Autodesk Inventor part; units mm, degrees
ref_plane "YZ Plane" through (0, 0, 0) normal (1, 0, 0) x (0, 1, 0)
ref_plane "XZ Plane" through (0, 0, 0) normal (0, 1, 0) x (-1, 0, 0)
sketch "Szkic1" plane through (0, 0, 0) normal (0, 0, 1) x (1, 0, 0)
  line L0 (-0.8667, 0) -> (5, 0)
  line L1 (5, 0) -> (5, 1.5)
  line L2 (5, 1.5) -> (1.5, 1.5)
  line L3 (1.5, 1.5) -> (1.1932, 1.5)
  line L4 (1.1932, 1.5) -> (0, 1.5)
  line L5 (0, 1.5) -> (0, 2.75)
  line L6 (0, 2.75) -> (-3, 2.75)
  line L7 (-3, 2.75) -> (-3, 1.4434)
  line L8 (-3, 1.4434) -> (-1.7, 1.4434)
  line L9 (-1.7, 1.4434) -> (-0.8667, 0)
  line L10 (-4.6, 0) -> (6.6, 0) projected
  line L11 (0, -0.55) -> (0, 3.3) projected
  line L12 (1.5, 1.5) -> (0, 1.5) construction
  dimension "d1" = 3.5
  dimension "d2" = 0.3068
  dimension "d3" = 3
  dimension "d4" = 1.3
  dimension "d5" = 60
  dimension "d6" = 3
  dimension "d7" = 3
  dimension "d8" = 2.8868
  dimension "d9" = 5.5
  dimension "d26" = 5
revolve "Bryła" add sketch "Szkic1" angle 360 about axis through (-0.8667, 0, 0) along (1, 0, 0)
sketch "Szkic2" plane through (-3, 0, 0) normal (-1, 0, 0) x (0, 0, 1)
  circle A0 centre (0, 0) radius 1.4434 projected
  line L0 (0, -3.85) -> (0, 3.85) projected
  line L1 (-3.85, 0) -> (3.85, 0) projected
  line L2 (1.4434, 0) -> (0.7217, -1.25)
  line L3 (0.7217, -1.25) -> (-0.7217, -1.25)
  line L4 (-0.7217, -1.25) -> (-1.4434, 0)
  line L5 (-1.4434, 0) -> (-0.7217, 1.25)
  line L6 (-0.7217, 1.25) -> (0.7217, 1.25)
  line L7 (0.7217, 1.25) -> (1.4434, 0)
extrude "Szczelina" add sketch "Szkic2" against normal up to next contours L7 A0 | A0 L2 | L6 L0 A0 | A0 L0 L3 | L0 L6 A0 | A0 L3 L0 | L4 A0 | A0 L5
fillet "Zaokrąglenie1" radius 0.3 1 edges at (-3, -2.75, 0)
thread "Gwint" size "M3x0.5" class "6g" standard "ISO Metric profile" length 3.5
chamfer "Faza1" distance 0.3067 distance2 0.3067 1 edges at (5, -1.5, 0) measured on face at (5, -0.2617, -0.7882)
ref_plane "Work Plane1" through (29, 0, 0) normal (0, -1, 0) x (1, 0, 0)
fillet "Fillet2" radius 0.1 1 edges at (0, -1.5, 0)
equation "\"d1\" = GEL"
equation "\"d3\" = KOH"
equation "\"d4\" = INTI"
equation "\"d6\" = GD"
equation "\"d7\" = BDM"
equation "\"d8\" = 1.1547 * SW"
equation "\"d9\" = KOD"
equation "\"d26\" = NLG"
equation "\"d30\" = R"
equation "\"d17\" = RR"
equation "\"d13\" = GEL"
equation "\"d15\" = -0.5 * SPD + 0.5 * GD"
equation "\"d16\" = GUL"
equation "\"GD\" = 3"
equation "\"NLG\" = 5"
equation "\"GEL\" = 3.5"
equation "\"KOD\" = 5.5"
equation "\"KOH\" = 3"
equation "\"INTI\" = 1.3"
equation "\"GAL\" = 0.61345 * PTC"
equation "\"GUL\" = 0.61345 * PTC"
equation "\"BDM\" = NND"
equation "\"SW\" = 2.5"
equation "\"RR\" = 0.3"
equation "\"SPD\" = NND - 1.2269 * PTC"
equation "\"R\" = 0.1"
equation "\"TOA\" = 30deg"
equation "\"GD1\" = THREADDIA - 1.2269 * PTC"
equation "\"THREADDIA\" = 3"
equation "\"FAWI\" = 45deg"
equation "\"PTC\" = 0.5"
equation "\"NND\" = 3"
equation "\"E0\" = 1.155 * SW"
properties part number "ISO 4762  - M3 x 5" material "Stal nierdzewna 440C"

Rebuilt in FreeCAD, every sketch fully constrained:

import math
import FreeCAD as App
import Part
import Sketcher

V = App.Vector
Q = App.Units.Quantity


def edges_at(feature, points):
    """Names of the edges that pass closest to the given points."""
    edges = feature.Shape.Edges
    near = lambda p: min(range(len(edges)), key=lambda i: edges[i].distToShape(Part.Vertex(*p))[0])
    return sorted({f"Edge{near(p) + 1}" for p in points})


def add_polygon(sketch, points):
    """Adds a closed chain of lines whose ends are joined by coincident constraints."""
    first, n = sketch.GeometryCount, len(points)
    for a, b in zip(points, points[1:] + points[:1]):
        sketch.addGeometry(Part.LineSegment(App.Vector(*a, 0), App.Vector(*b, 0)), False)
    for i in range(n):
        sketch.addConstraint(Sketcher.Constraint("Coincident", first + i, 2, first + (i + 1) % n, 1))

doc = App.newDocument("Part")
body = doc.addObject("PartDesign::Body", "Body")

sketch1 = body.newObject("Sketcher::SketchObject", "Sketch")
sketch1.AttachmentSupport = (doc.getObject("XY_Plane"), [""])
sketch1.MapMode = "FlatFace"
add_polygon(sketch1, [(-1.7, 1.4), (-0.9, 0), (5, 0), (5, 1.5), (0, 1.5), (0, 2.8), (-3, 2.8), (-3, 1.4)])
sketch1.addConstraint([
    Sketcher.Constraint("Horizontal", 1),
    Sketcher.Constraint("Vertical", 2),
    Sketcher.Constraint("Horizontal", 3),
    Sketcher.Constraint("Vertical", 4),
    Sketcher.Constraint("Horizontal", 5),
    Sketcher.Constraint("Vertical", 6),
    Sketcher.Constraint("Horizontal", 7),
    Sketcher.Constraint("PointOnObject", 0, 2, -1),
    Sketcher.Constraint("PointOnObject", 3, 2, -2),
    Sketcher.Constraint("DistanceX", 3, 2, 3, 1, Q("5 mm")),
    Sketcher.Constraint("DistanceX", 5, 2, 5, 1, Q("3 mm")),
    Sketcher.Constraint("DistanceX", 7, 1, 7, 2, Q("1.3 mm")),
    Sketcher.Constraint("DistanceY", 2, 1, 2, 2, Q("1.5 mm")),
    Sketcher.Constraint("DistanceY", 4, 1, 4, 2, Q("1.25 mm")),
    Sketcher.Constraint("DistanceX", 1, 1, 1, 2, Q("5.8667 mm")),
    Sketcher.Constraint("DistanceY", 6, 2, 6, 1, Q("1.3066 mm")),
])
revolution = body.newObject("PartDesign::Revolution", "Revolution")
revolution.Profile = sketch1
revolution.ReferenceAxis = (sketch1, ["H_Axis"])
revolution.Angle = 360

sketch2 = body.newObject("Sketcher::SketchObject", "Sketch001")
sketch2.AttachmentSupport = (doc.getObject("YZ_Plane"), [""])
sketch2.MapMode = "FlatFace"
sketch2.AttachmentOffset = App.Placement(V(0, 0, -3), App.Rotation())
sketch2.addGeometry([
    Part.LineSegment(V(1.2, 0.7, 0), V(0, 1.4, 0)),
    Part.ArcOfCircle(Part.Circle(V(0, 0, 0), V(0, 0, 1), 1.4), math.radians(30), math.radians(90)),
    Part.ArcOfCircle(Part.Circle(V(0, 0, 0), V(0, 0, 1), 1.4), math.radians(90), math.radians(150)),
    Part.LineSegment(V(0, 1.4, 0), V(-1.2, 0.7, 0)),
    Part.ArcOfCircle(Part.Circle(V(0, 0, 0), V(0, 0, 1), 1.4), math.radians(-30), math.radians(30)),
    Part.LineSegment(V(1.2, 0.7, 0), V(1.2, -0.7, 0)),
    Part.LineSegment(V(-1.2, 0.7, 0), V(-1.2, -0.7, 0)),
    Part.ArcOfCircle(Part.Circle(V(0, 0, 0), V(0, 0, 1), 1.4), math.radians(150), math.radians(210)),
    Part.LineSegment(V(-1.2, -0.7, 0), V(0, -1.4, 0)),
    Part.ArcOfCircle(Part.Circle(V(0, 0, 0), V(0, 0, 1), 1.4), math.radians(-150), math.radians(-90)),
    Part.ArcOfCircle(Part.Circle(V(0, 0, 0), V(0, 0, 1), 1.4), math.radians(-90), math.radians(-30)),
    Part.LineSegment(V(0, -1.4, 0), V(1.2, -0.7, 0)),
], False)
sketch2.addConstraint([
    Sketcher.Constraint("Coincident", 0, 1, 1, 1),
    Sketcher.Constraint("Coincident", 1, 2, 0, 2),
    Sketcher.Constraint("Coincident", 2, 1, 3, 1),
    Sketcher.Constraint("Coincident", 3, 2, 2, 2),
    Sketcher.Constraint("Coincident", 4, 1, 5, 2),
    Sketcher.Constraint("Coincident", 5, 1, 4, 2),
    Sketcher.Constraint("Coincident", 6, 1, 7, 1),
    Sketcher.Constraint("Coincident", 7, 2, 6, 2),
    Sketcher.Constraint("Coincident", 8, 1, 9, 1),
    Sketcher.Constraint("Coincident", 9, 2, 8, 2),
    Sketcher.Constraint("Coincident", 10, 1, 11, 1),
    Sketcher.Constraint("Coincident", 11, 2, 10, 2),
    Sketcher.Constraint("Vertical", 5),
    Sketcher.Constraint("Vertical", 6),
    Sketcher.Constraint("Coincident", 1, 3, -1, 1),
    Sketcher.Constraint("Coincident", 2, 3, -1, 1),
    Sketcher.Constraint("Coincident", 4, 3, -1, 1),
    Sketcher.Constraint("Coincident", 7, 3, -1, 1),
    Sketcher.Constraint("Coincident", 9, 3, -1, 1),
    Sketcher.Constraint("Coincident", 10, 3, -1, 1),
    Sketcher.Constraint("Coincident", 2, 1, 1, 2),
    Sketcher.Constraint("Coincident", 5, 1, 0, 1),
    Sketcher.Constraint("Coincident", 6, 1, 3, 2),
    Sketcher.Constraint("Coincident", 8, 1, 7, 2),
    Sketcher.Constraint("Coincident", 10, 1, 9, 2),
    Sketcher.Constraint("PointOnObject", 1, 2, -2),
    Sketcher.Constraint("PointOnObject", 9, 2, -2),
    Sketcher.Constraint("Parallel", 0, 8),
    Sketcher.Constraint("Parallel", 3, 11),
    Sketcher.Constraint("Angle", 0, Q("149.9996 deg")),
    Sketcher.Constraint("Radius", 1, Q("1.4434 mm")),
])
pad1 = body.newObject("PartDesign::Pad", "Pad")
pad1.Profile = sketch2
pad1.Type = "UpToFirst"
doc.recompute()

fillet = body.newObject("PartDesign::Fillet", "Fillet")
fillet.Base = (pad1, edges_at(pad1, [(-3, -2.75, 0)]))
fillet.Radius = 0.3
doc.recompute()

chamfer = body.newObject("PartDesign::Chamfer", "Chamfer")
chamfer.Base = (fillet, edges_at(fillet, [(5, -1.5, 0)]))
chamfer.ChamferType = "Two distances"
chamfer.Size = 0.3067
chamfer.Size2 = 0.3067
doc.recompute()

fillet2 = body.newObject("PartDesign::Fillet", "Fillet001")
fillet2.Base = (chamfer, edges_at(chamfer, [(0, -1.5, 0)]))
fillet2.Radius = 0.1

doc.recompute()
